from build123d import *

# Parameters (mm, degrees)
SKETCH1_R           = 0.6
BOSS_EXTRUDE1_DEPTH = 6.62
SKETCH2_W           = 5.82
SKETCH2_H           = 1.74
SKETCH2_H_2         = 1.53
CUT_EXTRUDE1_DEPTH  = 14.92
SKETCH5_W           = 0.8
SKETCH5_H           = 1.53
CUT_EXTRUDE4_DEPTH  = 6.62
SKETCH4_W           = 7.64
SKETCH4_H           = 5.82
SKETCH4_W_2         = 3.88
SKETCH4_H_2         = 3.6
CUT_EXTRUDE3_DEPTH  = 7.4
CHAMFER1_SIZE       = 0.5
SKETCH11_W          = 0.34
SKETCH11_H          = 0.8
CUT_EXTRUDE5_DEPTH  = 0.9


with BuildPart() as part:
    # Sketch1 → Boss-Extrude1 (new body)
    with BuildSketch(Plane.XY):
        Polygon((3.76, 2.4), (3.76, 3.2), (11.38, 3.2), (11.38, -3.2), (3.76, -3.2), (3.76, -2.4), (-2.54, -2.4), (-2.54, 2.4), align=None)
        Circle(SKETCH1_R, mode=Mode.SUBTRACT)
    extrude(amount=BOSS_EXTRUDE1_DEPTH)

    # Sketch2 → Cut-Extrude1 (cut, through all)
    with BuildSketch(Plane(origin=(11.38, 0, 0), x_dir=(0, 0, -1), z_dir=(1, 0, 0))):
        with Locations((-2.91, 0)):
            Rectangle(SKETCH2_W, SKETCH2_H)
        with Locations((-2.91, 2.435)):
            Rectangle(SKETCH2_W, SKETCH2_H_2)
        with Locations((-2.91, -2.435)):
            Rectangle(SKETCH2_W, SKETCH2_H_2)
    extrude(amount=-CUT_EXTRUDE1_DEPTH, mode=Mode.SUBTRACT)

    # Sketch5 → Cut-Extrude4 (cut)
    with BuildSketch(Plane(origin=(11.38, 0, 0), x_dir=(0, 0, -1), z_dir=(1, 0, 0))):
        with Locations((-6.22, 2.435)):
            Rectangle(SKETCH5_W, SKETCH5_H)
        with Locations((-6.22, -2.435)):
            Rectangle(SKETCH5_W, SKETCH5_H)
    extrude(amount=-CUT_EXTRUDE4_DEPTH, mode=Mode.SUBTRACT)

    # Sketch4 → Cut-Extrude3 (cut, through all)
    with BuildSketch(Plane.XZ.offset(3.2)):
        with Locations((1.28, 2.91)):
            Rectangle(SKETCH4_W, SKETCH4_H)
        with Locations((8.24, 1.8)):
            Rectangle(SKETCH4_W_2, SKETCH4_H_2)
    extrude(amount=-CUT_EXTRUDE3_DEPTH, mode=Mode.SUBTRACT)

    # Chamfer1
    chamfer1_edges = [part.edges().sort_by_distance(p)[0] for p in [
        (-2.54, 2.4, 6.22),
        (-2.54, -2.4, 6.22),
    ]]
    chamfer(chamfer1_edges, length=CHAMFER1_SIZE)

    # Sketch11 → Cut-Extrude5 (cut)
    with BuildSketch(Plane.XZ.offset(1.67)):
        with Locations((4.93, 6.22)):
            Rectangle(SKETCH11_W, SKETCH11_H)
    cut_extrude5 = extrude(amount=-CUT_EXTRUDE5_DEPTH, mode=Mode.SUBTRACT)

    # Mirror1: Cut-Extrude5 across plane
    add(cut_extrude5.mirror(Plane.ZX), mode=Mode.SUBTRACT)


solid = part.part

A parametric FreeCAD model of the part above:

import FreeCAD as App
import Part
import Sketcher

V = App.Vector


def edges_at(feature, points):
    """Names of the edges that pass closest to the given points."""
    edges = feature.Shape.Edges
    near = lambda p: min(range(len(edges)), key=lambda i: edges[i].distToShape(Part.Vertex(*p))[0])
    return sorted({f"Edge{near(p) + 1}" for p in points})

doc = App.newDocument("Part")
body = doc.addObject("PartDesign::Body", "Body")

# Sketch on XY plane
sketch1 = body.newObject("Sketcher::SketchObject", "Sketch")
sketch1.AttachmentSupport = (doc.getObject("XY_Plane"), [""])
sketch1.MapMode = "FlatFace"
sketch1.addGeometry(Part.LineSegment(V(3.8, 3.2, 0), V(3.8, 2.4, 0)), False)
sketch1.addGeometry(Part.LineSegment(V(3.8, 2.4, 0), V(-2.5, 2.4, 0)), False)
sketch1.addGeometry(Part.LineSegment(V(-2.5, 2.4, 0), V(-2.5, -2.4, 0)), False)
sketch1.addGeometry(Part.LineSegment(V(-2.5, -2.4, 0), V(3.8, -2.4, 0)), False)
sketch1.addGeometry(Part.LineSegment(V(3.8, -2.4, 0), V(3.8, -3.2, 0)), False)
sketch1.addGeometry(Part.LineSegment(V(3.8, -3.2, 0), V(11.4, -3.2, 0)), False)
sketch1.addGeometry(Part.LineSegment(V(11.4, -3.2, 0), V(11.4, 3.2, 0)), False)
sketch1.addGeometry(Part.LineSegment(V(11.4, 3.2, 0), V(3.8, 3.2, 0)), False)
sketch1.addGeometry(Part.Circle(V(0, 0, 0), V(0, 0, 1), 0.6), False)
sketch1.addConstraint(Sketcher.Constraint("Coincident", 0, 2, 1, 1))
sketch1.addConstraint(Sketcher.Constraint("Coincident", 1, 2, 2, 1))
sketch1.addConstraint(Sketcher.Constraint("Coincident", 2, 2, 3, 1))
sketch1.addConstraint(Sketcher.Constraint("Coincident", 3, 2, 4, 1))
sketch1.addConstraint(Sketcher.Constraint("Coincident", 4, 2, 5, 1))
sketch1.addConstraint(Sketcher.Constraint("Coincident", 5, 2, 6, 1))
sketch1.addConstraint(Sketcher.Constraint("Coincident", 6, 2, 7, 1))
sketch1.addConstraint(Sketcher.Constraint("Coincident", 7, 2, 0, 1))
sketch1.addConstraint(Sketcher.Constraint("Vertical", 0))
sketch1.addConstraint(Sketcher.Constraint("Horizontal", 1))
sketch1.addConstraint(Sketcher.Constraint("Vertical", 2))
sketch1.addConstraint(Sketcher.Constraint("Horizontal", 3))
sketch1.addConstraint(Sketcher.Constraint("Vertical", 4))
sketch1.addConstraint(Sketcher.Constraint("Horizontal", 5))
sketch1.addConstraint(Sketcher.Constraint("Vertical", 6))
sketch1.addConstraint(Sketcher.Constraint("Horizontal", 7))
sketch1.addConstraint(Sketcher.Constraint("Coincident", 8, 3, -1, 1))
sketch1.addConstraint(Sketcher.Constraint("Symmetric", 0, 2, 3, 2, -1))
sketch1.addConstraint(Sketcher.Constraint("Equal", 0, 4))
sketch1.addConstraint(Sketcher.Constraint("Diameter", 8, 1.2))
sketch1.addConstraint(Sketcher.Constraint("DistanceX", 1, 2, 1, 1, 6.3))
sketch1.addConstraint(Sketcher.Constraint("DistanceY", 0, 2, 0, 1, 0.8))
sketch1.addConstraint(Sketcher.Constraint("DistanceY", 2, 2, 2, 1, 4.8))
sketch1.addConstraint(Sketcher.Constraint("DistanceX", 5, 1, 5, 2, 7.62))
sketch1.addConstraint(Sketcher.Constraint("DistanceX", -1, 1, 0, 2, 3.76))
pad1 = body.newObject("PartDesign::Pad", "Pad")
pad1.Profile = sketch1
pad1.Length = 6.62

# Sketch on YZ plane
sketch2 = body.newObject("Sketcher::SketchObject", "Sketch001")
sketch2.AttachmentSupport = (doc.getObject("YZ_Plane"), [""])
sketch2.MapMode = "FlatFace"
sketch2.AttachmentOffset = App.Placement(V(0, 0, 11.38), App.Rotation())
sketch2.addGeometry(Part.LineSegment(V(0.9, 5.8, 0), V(-0.9, 5.8, 0)), False)
sketch2.addGeometry(Part.LineSegment(V(-0.9, 5.8, 0), V(-0.9, 0, 0)), False)
sketch2.addGeometry(Part.LineSegment(V(-0.9, 0, 0), V(0.9, 0, 0)), False)
sketch2.addGeometry(Part.LineSegment(V(0.9, 0, 0), V(0.9, 5.8, 0)), False)
sketch2.addGeometry(Part.LineSegment(V(3.2, 5.8, 0), V(1.7, 5.8, 0)), False)
sketch2.addGeometry(Part.LineSegment(V(1.7, 5.8, 0), V(1.7, 0, 0)), False)
sketch2.addGeometry(Part.LineSegment(V(1.7, 0, 0), V(3.2, 0, 0)), False)
sketch2.addGeometry(Part.LineSegment(V(3.2, 0, 0), V(3.2, 5.8, 0)), False)
sketch2.addGeometry(Part.LineSegment(V(-1.7, 5.8, 0), V(-3.2, 5.8, 0)), False)
sketch2.addGeometry(Part.LineSegment(V(-3.2, 5.8, 0), V(-3.2, 0, 0)), False)
sketch2.addGeometry(Part.LineSegment(V(-3.2, 0, 0), V(-1.7, 0, 0)), False)
sketch2.addGeometry(Part.LineSegment(V(-1.7, 0, 0), V(-1.7, 5.8, 0)), False)
sketch2.addConstraint(Sketcher.Constraint("Coincident", 0, 2, 1, 1))
sketch2.addConstraint(Sketcher.Constraint("Coincident", 1, 2, 2, 1))
sketch2.addConstraint(Sketcher.Constraint("Coincident", 2, 2, 3, 1))
sketch2.addConstraint(Sketcher.Constraint("Coincident", 3, 2, 0, 1))
sketch2.addConstraint(Sketcher.Constraint("Coincident", 4, 2, 5, 1))
sketch2.addConstraint(Sketcher.Constraint("Coincident", 5, 2, 6, 1))
sketch2.addConstraint(Sketcher.Constraint("Coincident", 6, 2, 7, 1))
sketch2.addConstraint(Sketcher.Constraint("Coincident", 7, 2, 4, 1))
sketch2.addConstraint(Sketcher.Constraint("Coincident", 8, 2, 9, 1))
sketch2.addConstraint(Sketcher.Constraint("Coincident", 9, 2, 10, 1))
sketch2.addConstraint(Sketcher.Constraint("Coincident", 10, 2, 11, 1))
sketch2.addConstraint(Sketcher.Constraint("Coincident", 11, 2, 8, 1))
sketch2.addConstraint(Sketcher.Constraint("Horizontal", 0))
sketch2.addConstraint(Sketcher.Constraint("Vertical", 1))
sketch2.addConstraint(Sketcher.Constraint("Horizontal", 2))
sketch2.addConstraint(Sketcher.Constraint("Vertical", 3))
sketch2.addConstraint(Sketcher.Constraint("Horizontal", 4))
sketch2.addConstraint(Sketcher.Constraint("Vertical", 5))
sketch2.addConstraint(Sketcher.Constraint("Horizontal", 6))
sketch2.addConstraint(Sketcher.Constraint("Vertical", 7))
sketch2.addConstraint(Sketcher.Constraint("Horizontal", 8))
sketch2.addConstraint(Sketcher.Constraint("Vertical", 9))
sketch2.addConstraint(Sketcher.Constraint("Horizontal", 10))
sketch2.addConstraint(Sketcher.Constraint("Vertical", 11))
sketch2.addConstraint(Sketcher.Constraint("Symmetric", 1, 2, 2, 2, -1, 1))
sketch2.addConstraint(Sketcher.Constraint("Symmetric", 6, 2, 9, 2, -1, 1))
sketch2.addConstraint(Sketcher.Constraint("Symmetric", 5, 2, 10, 2, -2))
sketch2.addConstraint(Sketcher.Constraint("Horizontal", 3, 2, 4, 2))
sketch2.addConstraint(Sketcher.Constraint("Horizontal", 7, 2, 8, 2))
sketch2.addConstraint(Sketcher.Constraint("DistanceX", 0, 2, 0, 1, 1.74))
sketch2.addConstraint(Sketcher.Constraint("DistanceX", 4, 2, 4, 1, 1.53))
sketch2.addConstraint(Sketcher.Constraint("DistanceY", 1, 2, 1, 1, 5.82))
sketch2.addConstraint(Sketcher.Constraint("DistanceX", -1, 1, 6, 2, 3.2))
pocket1 = body.newObject("PartDesign::Pocket", "Pocket")
pocket1.Profile = sketch2
pocket1.Type = "ThroughAll"

# Sketch on YZ plane
sketch3 = body.newObject("Sketcher::SketchObject", "Sketch002")
sketch3.AttachmentSupport = (doc.getObject("YZ_Plane"), [""])
sketch3.MapMode = "FlatFace"
sketch3.AttachmentOffset = App.Placement(V(0, 0, 11.38), App.Rotation())
sketch3.addGeometry(Part.LineSegment(V(3.2, 6.6, 0), V(1.7, 6.6, 0)), False)
sketch3.addGeometry(Part.LineSegment(V(1.7, 6.6, 0), V(1.7, 5.8, 0)), False)
sketch3.addGeometry(Part.LineSegment(V(1.7, 5.8, 0), V(3.2, 5.8, 0)), False)
sketch3.addGeometry(Part.LineSegment(V(3.2, 5.8, 0), V(3.2, 6.6, 0)), False)
sketch3.addGeometry(Part.LineSegment(V(-1.7, 6.6, 0), V(-3.2, 6.6, 0)), False)
sketch3.addGeometry(Part.LineSegment(V(-3.2, 6.6, 0), V(-3.2, 5.8, 0)), False)
sketch3.addGeometry(Part.LineSegment(V(-3.2, 5.8, 0), V(-1.7, 5.8, 0)), False)
sketch3.addGeometry(Part.LineSegment(V(-1.7, 5.8, 0), V(-1.7, 6.6, 0)), False)
sketch3.addConstraint(Sketcher.Constraint("Coincident", 0, 2, 1, 1))
sketch3.addConstraint(Sketcher.Constraint("Coincident", 1, 2, 2, 1))
sketch3.addConstraint(Sketcher.Constraint("Coincident", 2, 2, 3, 1))
sketch3.addConstraint(Sketcher.Constraint("Coincident", 3, 2, 0, 1))
sketch3.addConstraint(Sketcher.Constraint("Coincident", 4, 2, 5, 1))
sketch3.addConstraint(Sketcher.Constraint("Coincident", 5, 2, 6, 1))
sketch3.addConstraint(Sketcher.Constraint("Coincident", 6, 2, 7, 1))
sketch3.addConstraint(Sketcher.Constraint("Coincident", 7, 2, 4, 1))
sketch3.addConstraint(Sketcher.Constraint("Horizontal", 0))
sketch3.addConstraint(Sketcher.Constraint("Vertical", 1))
sketch3.addConstraint(Sketcher.Constraint("Horizontal", 2))
sketch3.addConstraint(Sketcher.Constraint("Vertical", 3))
sketch3.addConstraint(Sketcher.Constraint("Horizontal", 4))
sketch3.addConstraint(Sketcher.Constraint("Vertical", 5))
sketch3.addConstraint(Sketcher.Constraint("Horizontal", 6))
sketch3.addConstraint(Sketcher.Constraint("Vertical", 7))
sketch3.addConstraint(Sketcher.Constraint("Symmetric", 3, 2, 4, 2, -2))
sketch3.addConstraint(Sketcher.Constraint("Symmetric", 1, 2, 6, 2, -2))
sketch3.addConstraint(Sketcher.Constraint("DistanceY", 1, 2, 1, 1, 0.8))
sketch3.addConstraint(Sketcher.Constraint("DistanceX", 0, 2, 0, 1, 1.53))
sketch3.addConstraint(Sketcher.Constraint("DistanceX", -1, 1, 2, 2, 3.2))
sketch3.addConstraint(Sketcher.Constraint("DistanceY", -1, 1, 0, 2, 6.62))
pocket2 = body.newObject("PartDesign::Pocket", "Pocket001")
pocket2.Profile = sketch3
pocket2.Length = 6.62

# Sketch on XZ plane
sketch4 = body.newObject("Sketcher::SketchObject", "Sketch003")
sketch4.AttachmentSupport = (doc.getObject("XZ_Plane"), [""])
sketch4.MapMode = "FlatFace"
sketch4.AttachmentOffset = App.Placement(V(0, 0, 3.2), App.Rotation())
sketch4.addGeometry(Part.LineSegment(V(-2.5, 5.8, 0), V(-2.5, 0, 0)), False)
sketch4.addGeometry(Part.LineSegment(V(-2.5, 0, 0), V(5.1, 0, 0)), False)
sketch4.addGeometry(Part.LineSegment(V(5.1, 0, 0), V(5.1, 5.8, 0)), False)
sketch4.addGeometry(Part.LineSegment(V(5.1, 5.8, 0), V(-2.5, 5.8, 0)), False)
sketch4.addGeometry(Part.LineSegment(V(6.3, 3.6, 0), V(6.3, 0, 0)), False)
sketch4.addGeometry(Part.LineSegment(V(6.3, 0, 0), V(10.2, 0, 0)), False)
sketch4.addGeometry(Part.LineSegment(V(10.2, 0, 0), V(10.2, 3.6, 0)), False)
sketch4.addGeometry(Part.LineSegment(V(10.2, 3.6, 0), V(6.3, 3.6, 0)), False)
sketch4.addConstraint(Sketcher.Constraint("Coincident", 0, 2, 1, 1))
sketch4.addConstraint(Sketcher.Constraint("Coincident", 1, 2, 2, 1))
sketch4.addConstraint(Sketcher.Constraint("Coincident", 2, 2, 3, 1))
sketch4.addConstraint(Sketcher.Constraint("Coincident", 3, 2, 0, 1))
sketch4.addConstraint(Sketcher.Constraint("Coincident", 4, 2, 5, 1))
sketch4.addConstraint(Sketcher.Constraint("Coincident", 5, 2, 6, 1))
sketch4.addConstraint(Sketcher.Constraint("Coincident", 6, 2, 7, 1))
sketch4.addConstraint(Sketcher.Constraint("Coincident", 7, 2, 4, 1))
sketch4.addConstraint(Sketcher.Constraint("Vertical", 0))
sketch4.addConstraint(Sketcher.Constraint("Horizontal", 1))
sketch4.addConstraint(Sketcher.Constraint("Vertical", 2))
sketch4.addConstraint(Sketcher.Constraint("Horizontal", 3))
sketch4.addConstraint(Sketcher.Constraint("Vertical", 4))
sketch4.addConstraint(Sketcher.Constraint("Horizontal", 5))
sketch4.addConstraint(Sketcher.Constraint("Vertical", 6))
sketch4.addConstraint(Sketcher.Constraint("Horizontal", 7))
sketch4.addConstraint(Sketcher.Constraint("PointOnObject", 0, 2, -1))
sketch4.addConstraint(Sketcher.Constraint("PointOnObject", 4, 2, -1))
sketch4.addConstraint(Sketcher.Constraint("DistanceY", 4, 2, 4, 1, 3.6))
sketch4.addConstraint(Sketcher.Constraint("DistanceX", 1, 1, 1, 2, 7.64))
sketch4.addConstraint(Sketcher.Constraint("DistanceX", 5, 1, 5, 2, 3.88))
sketch4.addConstraint(Sketcher.Constraint("DistanceY", 0, 2, 0, 1, 5.82))
sketch4.addConstraint(Sketcher.Constraint("DistanceX", -1, 1, 1, 2, 5.1))
sketch4.addConstraint(Sketcher.Constraint("DistanceX", -1, 1, 4, 2, 6.3))
pocket3 = body.newObject("PartDesign::Pocket", "Pocket002")
pocket3.Profile = sketch4
pocket3.Type = "ThroughAll"
doc.recompute()

chamfer = body.newObject("PartDesign::Chamfer", "Chamfer")
chamfer.Base = (pocket3, edges_at(pocket3, [(-2.54, 2.4, 6.22), (-2.54, -2.4, 6.22)]))
chamfer.Size = 0.5

# Sketch on XZ plane
sketch5 = body.newObject("Sketcher::SketchObject", "Sketch004")
sketch5.AttachmentSupport = (doc.getObject("XZ_Plane"), [""])
sketch5.MapMode = "FlatFace"
sketch5.AttachmentOffset = App.Placement(V(0, 0, 1.67), App.Rotation())
sketch5.addGeometry(Part.LineSegment(V(4.76, 6.62, 0), V(4.76, 5.82, 0)), False)
sketch5.addGeometry(Part.LineSegment(V(4.76, 5.82, 0), V(5.1, 5.82, 0)), False)
sketch5.addGeometry(Part.LineSegment(V(5.1, 5.82, 0), V(5.1, 6.62, 0)), False)
sketch5.addGeometry(Part.LineSegment(V(5.1, 6.62, 0), V(4.76, 6.62, 0)), False)
sketch5.addConstraint(Sketcher.Constraint("Coincident", 0, 2, 1, 1))
sketch5.addConstraint(Sketcher.Constraint("Coincident", 1, 2, 2, 1))
sketch5.addConstraint(Sketcher.Constraint("Coincident", 2, 2, 3, 1))
sketch5.addConstraint(Sketcher.Constraint("Coincident", 3, 2, 0, 1))
sketch5.addConstraint(Sketcher.Constraint("Vertical", 0))
sketch5.addConstraint(Sketcher.Constraint("Horizontal", 1))
sketch5.addConstraint(Sketcher.Constraint("Vertical", 2))
sketch5.addConstraint(Sketcher.Constraint("Horizontal", 3))
sketch5.addConstraint(Sketcher.Constraint("DistanceY", 0, 2, 0, 1, 0.8))
sketch5.addConstraint(Sketcher.Constraint("DistanceX", 1, 1, 1, 2, 0.34))
sketch5.addConstraint(Sketcher.Constraint("DistanceX", -1, 1, 1, 2, 5.1))
sketch5.addConstraint(Sketcher.Constraint("DistanceY", -1, 1, 0, 2, 5.82))
pocket4 = body.newObject("PartDesign::Pocket", "Pocket003")
pocket4.Profile = sketch5
pocket4.Length = 0.9
doc.recompute()

mirrored = body.newObject("PartDesign::Mirrored", "Mirrored")
mirrored.Originals = [pocket4]
mirrored.MirrorPlane = (doc.getObject("XZ_Plane"), [""])
body.Tip = mirrored

doc.recompute()
